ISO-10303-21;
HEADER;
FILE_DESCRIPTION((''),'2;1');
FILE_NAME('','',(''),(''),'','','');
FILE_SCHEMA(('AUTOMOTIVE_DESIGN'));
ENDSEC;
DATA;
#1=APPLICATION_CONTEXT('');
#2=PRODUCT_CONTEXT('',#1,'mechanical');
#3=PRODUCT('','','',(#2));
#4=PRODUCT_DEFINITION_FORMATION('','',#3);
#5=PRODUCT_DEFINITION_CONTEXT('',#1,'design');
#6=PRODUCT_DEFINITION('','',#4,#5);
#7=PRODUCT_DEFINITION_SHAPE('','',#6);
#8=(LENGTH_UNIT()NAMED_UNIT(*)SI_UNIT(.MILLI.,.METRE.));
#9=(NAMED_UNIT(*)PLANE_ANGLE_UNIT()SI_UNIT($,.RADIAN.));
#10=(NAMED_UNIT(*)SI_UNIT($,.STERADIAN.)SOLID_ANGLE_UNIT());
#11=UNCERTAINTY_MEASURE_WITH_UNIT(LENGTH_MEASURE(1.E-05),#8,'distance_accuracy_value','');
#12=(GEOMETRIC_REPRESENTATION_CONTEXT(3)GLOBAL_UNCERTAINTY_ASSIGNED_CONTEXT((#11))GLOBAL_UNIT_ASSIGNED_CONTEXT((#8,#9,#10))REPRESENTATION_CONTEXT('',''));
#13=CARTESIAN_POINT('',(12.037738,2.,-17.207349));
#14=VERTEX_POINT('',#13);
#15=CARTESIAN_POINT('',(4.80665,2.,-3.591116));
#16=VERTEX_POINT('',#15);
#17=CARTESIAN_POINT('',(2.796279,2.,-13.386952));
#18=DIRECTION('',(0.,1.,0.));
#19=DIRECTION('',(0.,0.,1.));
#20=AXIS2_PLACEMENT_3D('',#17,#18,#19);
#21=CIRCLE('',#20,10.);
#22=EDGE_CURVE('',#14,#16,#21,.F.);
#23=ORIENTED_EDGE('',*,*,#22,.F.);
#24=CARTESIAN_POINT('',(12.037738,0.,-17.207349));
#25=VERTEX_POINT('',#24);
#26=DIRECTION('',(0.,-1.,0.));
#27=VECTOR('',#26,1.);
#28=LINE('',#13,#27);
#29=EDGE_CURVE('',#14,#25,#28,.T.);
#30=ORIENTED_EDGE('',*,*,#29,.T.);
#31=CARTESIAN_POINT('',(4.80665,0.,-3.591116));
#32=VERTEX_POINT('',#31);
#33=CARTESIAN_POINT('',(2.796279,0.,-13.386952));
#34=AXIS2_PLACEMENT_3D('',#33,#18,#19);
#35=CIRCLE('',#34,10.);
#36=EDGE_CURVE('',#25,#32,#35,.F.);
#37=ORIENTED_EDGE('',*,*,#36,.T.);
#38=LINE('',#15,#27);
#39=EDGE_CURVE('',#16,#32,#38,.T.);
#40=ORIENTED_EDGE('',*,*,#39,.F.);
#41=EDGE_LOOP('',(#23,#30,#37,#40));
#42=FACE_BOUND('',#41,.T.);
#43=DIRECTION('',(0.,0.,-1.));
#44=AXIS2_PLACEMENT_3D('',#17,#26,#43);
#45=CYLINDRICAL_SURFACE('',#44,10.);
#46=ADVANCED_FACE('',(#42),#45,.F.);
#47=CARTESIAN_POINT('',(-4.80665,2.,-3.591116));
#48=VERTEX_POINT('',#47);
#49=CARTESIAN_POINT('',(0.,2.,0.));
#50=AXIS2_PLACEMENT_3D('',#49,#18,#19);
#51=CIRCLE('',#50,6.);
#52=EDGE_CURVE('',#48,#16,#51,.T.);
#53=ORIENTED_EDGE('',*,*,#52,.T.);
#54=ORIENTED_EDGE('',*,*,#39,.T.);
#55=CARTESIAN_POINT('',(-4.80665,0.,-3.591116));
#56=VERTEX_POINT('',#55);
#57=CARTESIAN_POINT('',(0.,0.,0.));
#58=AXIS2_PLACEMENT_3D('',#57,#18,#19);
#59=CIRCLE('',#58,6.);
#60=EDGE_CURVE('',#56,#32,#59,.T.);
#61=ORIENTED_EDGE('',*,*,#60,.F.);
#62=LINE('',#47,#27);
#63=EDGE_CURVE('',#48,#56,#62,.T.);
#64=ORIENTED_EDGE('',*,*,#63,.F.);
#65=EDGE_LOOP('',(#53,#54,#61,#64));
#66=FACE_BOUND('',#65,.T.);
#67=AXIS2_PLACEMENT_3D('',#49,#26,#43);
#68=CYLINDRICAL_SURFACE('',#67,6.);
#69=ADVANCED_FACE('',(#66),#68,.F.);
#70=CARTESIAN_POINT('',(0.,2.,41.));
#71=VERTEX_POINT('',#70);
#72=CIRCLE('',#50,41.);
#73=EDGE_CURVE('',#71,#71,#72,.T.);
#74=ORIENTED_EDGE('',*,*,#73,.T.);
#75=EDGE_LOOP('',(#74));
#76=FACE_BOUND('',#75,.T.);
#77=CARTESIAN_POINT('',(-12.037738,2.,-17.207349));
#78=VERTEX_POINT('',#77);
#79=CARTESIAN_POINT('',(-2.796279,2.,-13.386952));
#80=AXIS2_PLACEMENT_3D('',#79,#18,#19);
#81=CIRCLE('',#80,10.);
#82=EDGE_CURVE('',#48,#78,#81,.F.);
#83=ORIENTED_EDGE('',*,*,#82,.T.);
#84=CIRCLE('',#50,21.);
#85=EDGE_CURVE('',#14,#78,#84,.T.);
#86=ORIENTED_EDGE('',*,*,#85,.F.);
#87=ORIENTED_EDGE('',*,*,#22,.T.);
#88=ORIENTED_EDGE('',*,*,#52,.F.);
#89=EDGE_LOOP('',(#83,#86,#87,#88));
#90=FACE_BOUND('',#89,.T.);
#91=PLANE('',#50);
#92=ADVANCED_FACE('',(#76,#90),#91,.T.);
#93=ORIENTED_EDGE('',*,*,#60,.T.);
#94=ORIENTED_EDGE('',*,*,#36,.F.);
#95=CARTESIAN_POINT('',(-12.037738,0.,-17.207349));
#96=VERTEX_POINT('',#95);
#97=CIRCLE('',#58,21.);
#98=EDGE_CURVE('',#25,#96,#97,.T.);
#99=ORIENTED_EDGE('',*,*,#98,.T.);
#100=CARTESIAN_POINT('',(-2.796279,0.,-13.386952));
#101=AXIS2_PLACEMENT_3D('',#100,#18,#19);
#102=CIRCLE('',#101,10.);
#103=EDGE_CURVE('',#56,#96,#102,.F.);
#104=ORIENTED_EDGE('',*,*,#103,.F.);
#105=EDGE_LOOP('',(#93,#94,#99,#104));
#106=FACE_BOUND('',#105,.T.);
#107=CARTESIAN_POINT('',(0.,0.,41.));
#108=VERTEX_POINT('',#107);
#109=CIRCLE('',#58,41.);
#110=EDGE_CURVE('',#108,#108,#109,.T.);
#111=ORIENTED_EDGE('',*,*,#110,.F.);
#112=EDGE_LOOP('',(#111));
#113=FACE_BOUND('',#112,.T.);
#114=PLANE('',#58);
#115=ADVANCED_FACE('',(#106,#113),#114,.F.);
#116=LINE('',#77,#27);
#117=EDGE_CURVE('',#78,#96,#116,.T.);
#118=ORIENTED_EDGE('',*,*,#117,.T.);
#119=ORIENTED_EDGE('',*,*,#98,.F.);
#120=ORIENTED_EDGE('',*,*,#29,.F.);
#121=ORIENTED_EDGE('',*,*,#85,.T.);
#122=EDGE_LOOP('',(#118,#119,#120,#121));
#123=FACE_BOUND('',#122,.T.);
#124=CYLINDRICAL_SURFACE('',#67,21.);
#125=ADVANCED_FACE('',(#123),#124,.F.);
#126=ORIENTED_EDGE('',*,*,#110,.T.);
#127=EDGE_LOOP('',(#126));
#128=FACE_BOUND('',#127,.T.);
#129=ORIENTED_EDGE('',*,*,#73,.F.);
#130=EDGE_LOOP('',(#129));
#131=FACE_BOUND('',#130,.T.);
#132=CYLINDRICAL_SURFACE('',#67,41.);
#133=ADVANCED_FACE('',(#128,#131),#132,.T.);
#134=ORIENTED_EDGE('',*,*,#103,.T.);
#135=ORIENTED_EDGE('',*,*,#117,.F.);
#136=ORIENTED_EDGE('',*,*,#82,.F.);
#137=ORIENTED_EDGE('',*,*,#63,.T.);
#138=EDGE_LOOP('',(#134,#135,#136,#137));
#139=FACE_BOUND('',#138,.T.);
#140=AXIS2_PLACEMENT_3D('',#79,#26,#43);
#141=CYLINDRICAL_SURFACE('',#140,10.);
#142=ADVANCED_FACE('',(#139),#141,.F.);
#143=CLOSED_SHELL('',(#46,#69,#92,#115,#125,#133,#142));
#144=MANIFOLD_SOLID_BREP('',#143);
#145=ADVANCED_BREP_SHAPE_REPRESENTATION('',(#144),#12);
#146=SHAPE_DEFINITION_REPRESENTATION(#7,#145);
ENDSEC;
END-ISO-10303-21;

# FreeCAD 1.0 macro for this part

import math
import FreeCAD as App
import Part
import Sketcher
from FreeCAD import Vector

doc = App.newDocument("Part")
params = doc.addObject("Spreadsheet::Sheet", "Params")
for row, (alias, value) in enumerate([
    ("sketch1_diameter", "82 mm"),
    ("sketch1_radius", "21 mm"),
    ("sketch1_radius2", "10 mm"),
    ("sketch1_radius3", "6 mm"),
    ("pad1_length", "2 mm"),
], start=1):
    params.set(f"A{row}", alias)
    params.set(f"B{row}", "=" + value)
    params.setAlias(f"B{row}", alias)

body = doc.addObject("PartDesign::Body", "Body")

# Sketch on XZ plane
sketch1 = body.newObject("Sketcher::SketchObject", "Sketch")
sketch1.AttachmentSupport = (doc.getObject("XZ_Plane"), [""])
sketch1.MapMode = "FlatFace"
sketch1.addGeometry(Part.Circle(Vector(0, 0, 0), Vector(0, 0, 1), 41), False)
sketch1.addGeometry(Part.ArcOfCircle(Part.Circle(Vector(0, 0, 0), Vector(0, 0, 1), 21), math.radians(-124.975464), math.radians(-55.024536)), False)
sketch1.addGeometry(Part.ArcOfCircle(Part.Circle(Vector(2.796279, -13.386952, 0), Vector(0, 0, 1), 10), math.radians(-22.460085), math.radians(78.402384)), False)
sketch1.addGeometry(Part.ArcOfCircle(Part.Circle(Vector(0, 0, 0), Vector(0, 0, 1), 6), math.radians(-36.763927), math.radians(216.763927)), False)
sketch1.addGeometry(Part.ArcOfCircle(Part.Circle(Vector(-2.796279, -13.386952, 0), Vector(0, 0, 1), 10), math.radians(101.597616), math.radians(202.460085)), False)
sketch1.addConstraint(Sketcher.Constraint("Coincident", 1, 2, 2, 1))
sketch1.addConstraint(Sketcher.Constraint("Coincident", 2, 2, 3, 1))
sketch1.addConstraint(Sketcher.Constraint("Coincident", 3, 2, 4, 1))
sketch1.addConstraint(Sketcher.Constraint("Coincident", 4, 2, 1, 1))
sketch1.addConstraint(Sketcher.Constraint("Coincident", 0, 3, -1, 1))
sketch1.addConstraint(Sketcher.Constraint("Coincident", 1, 3, -1, 1))
sketch1.addConstraint(Sketcher.Constraint("Coincident", 3, 3, -1, 1))
sketch1.addConstraint(Sketcher.Constraint("Equal", 2, 4))
sketch1.addConstraint(Sketcher.Constraint("Symmetric", 2, 3, 4, 3, -2))
sketch1.addConstraint(Sketcher.Constraint("Diameter", 0, 82.0))
sketch1.addConstraint(Sketcher.Constraint("Radius", 1, 21.0))
sketch1.addConstraint(Sketcher.Constraint("Radius", 2, 10.0))
sketch1.addConstraint(Sketcher.Constraint("Radius", 3, 6.0))
sketch1.addConstraint(Sketcher.Constraint("DistanceX", 3, 2, 2, 2, 9.6133))
sketch1.addConstraint(Sketcher.Constraint("DistanceX", -1, 1, 2, 3, 2.796279))
sketch1.setExpression("Constraints[9]", "Params.sketch1_diameter")
sketch1.setExpression("Constraints[10]", "Params.sketch1_radius")
sketch1.setExpression("Constraints[11]", "Params.sketch1_radius2")
sketch1.setExpression("Constraints[12]", "Params.sketch1_radius3")
pad1 = body.newObject("PartDesign::Pad", "Pad")
pad1.Profile = sketch1
pad1.setExpression("Length", "Params.pad1_length")
pad1.Reversed = True

doc.recompute()
